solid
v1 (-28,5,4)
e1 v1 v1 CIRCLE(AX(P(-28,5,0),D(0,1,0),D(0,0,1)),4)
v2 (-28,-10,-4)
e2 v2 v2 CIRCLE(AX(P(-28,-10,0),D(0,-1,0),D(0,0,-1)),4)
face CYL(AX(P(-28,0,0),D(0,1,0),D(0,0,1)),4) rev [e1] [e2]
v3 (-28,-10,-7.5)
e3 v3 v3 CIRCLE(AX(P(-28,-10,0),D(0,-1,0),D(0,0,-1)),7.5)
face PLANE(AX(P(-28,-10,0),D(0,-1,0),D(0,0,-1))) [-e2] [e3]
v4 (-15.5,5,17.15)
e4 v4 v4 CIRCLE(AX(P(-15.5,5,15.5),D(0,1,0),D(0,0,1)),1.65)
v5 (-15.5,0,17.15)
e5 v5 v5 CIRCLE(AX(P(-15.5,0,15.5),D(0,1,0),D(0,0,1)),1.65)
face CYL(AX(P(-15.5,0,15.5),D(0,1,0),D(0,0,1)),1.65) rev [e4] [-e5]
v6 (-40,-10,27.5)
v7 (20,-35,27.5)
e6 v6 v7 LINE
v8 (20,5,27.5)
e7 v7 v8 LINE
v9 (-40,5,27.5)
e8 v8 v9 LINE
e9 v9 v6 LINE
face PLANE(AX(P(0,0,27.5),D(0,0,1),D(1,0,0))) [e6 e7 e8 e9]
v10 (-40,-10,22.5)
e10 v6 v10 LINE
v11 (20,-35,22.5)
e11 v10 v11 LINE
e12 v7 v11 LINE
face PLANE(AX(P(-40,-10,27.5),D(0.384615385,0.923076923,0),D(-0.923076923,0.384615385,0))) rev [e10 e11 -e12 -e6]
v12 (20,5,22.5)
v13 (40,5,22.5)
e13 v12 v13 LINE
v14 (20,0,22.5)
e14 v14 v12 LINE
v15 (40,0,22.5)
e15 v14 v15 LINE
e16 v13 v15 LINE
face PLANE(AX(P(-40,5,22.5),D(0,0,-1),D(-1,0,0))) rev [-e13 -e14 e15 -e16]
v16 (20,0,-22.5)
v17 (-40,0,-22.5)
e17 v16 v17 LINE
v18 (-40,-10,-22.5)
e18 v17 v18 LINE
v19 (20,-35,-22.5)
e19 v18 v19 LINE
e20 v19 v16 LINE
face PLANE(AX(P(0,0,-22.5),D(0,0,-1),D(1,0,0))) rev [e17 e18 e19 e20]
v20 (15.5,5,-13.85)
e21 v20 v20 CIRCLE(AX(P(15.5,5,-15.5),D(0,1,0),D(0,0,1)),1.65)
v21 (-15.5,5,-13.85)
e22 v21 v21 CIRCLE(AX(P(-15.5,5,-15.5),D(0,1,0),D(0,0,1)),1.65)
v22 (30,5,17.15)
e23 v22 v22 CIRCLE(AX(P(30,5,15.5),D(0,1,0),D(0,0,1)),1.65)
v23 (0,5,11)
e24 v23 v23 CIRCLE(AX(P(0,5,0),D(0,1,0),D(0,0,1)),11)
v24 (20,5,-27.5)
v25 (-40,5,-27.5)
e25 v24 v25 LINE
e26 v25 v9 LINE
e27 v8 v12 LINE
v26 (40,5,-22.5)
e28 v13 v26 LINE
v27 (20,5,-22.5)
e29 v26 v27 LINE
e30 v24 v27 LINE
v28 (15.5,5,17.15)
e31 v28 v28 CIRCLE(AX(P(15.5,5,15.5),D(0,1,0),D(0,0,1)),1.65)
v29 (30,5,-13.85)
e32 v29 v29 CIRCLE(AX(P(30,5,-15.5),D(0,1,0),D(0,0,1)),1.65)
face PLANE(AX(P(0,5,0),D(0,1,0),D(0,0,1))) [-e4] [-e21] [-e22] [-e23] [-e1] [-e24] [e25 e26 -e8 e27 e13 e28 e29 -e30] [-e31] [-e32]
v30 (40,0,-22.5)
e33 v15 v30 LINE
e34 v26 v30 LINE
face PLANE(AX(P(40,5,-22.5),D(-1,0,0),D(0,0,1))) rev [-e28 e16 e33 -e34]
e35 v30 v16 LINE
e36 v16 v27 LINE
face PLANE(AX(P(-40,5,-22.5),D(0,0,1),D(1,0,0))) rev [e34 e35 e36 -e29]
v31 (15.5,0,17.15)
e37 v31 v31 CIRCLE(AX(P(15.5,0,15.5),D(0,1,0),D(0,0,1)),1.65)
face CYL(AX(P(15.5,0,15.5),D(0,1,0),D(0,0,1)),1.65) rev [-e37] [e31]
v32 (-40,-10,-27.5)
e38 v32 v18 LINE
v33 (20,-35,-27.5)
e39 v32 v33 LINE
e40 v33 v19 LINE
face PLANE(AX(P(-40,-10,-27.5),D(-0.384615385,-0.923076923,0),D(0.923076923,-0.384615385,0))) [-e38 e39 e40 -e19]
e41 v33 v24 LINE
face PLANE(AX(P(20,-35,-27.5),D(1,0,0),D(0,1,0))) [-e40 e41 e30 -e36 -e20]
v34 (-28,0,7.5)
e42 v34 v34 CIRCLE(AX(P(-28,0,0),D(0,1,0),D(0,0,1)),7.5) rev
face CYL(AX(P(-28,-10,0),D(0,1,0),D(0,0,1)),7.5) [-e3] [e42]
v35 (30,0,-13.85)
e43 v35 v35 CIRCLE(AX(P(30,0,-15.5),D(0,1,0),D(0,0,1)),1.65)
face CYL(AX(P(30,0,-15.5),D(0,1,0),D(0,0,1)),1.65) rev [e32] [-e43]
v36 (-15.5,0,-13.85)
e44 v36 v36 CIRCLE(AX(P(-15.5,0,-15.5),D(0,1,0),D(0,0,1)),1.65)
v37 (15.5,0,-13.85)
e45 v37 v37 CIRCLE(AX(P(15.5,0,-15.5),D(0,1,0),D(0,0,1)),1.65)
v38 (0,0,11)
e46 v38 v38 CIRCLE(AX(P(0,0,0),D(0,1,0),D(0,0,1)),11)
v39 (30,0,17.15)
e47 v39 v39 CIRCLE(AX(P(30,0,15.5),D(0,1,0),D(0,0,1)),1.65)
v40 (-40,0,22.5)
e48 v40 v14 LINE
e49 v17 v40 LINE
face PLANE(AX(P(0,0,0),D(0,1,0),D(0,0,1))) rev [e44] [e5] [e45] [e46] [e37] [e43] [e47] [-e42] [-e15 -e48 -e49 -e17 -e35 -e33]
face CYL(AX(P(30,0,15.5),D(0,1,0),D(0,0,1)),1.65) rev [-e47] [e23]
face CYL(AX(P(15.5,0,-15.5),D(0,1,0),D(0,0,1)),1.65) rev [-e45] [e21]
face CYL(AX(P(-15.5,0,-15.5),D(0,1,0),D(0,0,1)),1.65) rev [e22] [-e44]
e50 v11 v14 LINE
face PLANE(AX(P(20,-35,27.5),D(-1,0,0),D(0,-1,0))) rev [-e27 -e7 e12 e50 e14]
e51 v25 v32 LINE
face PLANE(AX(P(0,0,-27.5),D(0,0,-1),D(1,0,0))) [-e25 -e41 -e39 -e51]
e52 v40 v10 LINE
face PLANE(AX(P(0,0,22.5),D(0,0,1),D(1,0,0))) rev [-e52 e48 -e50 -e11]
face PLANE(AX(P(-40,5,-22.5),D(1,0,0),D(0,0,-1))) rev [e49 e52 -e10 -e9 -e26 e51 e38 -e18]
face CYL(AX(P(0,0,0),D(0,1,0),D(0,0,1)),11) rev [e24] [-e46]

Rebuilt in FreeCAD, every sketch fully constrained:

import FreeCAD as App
import Part
import Sketcher
Q = App.Units.Quantity

doc = App.newDocument("Part")
body = doc.addObject("PartDesign::Body", "Body")

sketch1 = body.newObject("Sketcher::SketchObject", "Sketch")
sketch1.AttachmentSupport = (doc.getObject("XZ_Plane"), [""])
sketch1.MapMode = "FlatFace"
sketch1.addGeometry([
    Part.LineSegment(App.Vector(-40, -22, 0), App.Vector(-40, 22, 0)),
    Part.LineSegment(App.Vector(-40, 22, 0), App.Vector(40, 22, 0)),
    Part.LineSegment(App.Vector(40, 22, 0), App.Vector(40, -22, 0)),
    Part.LineSegment(App.Vector(40, -22, 0), App.Vector(-40, -22, 0)),
], False)
sketch1.addConstraint([
    Sketcher.Constraint("Coincident", 0, 2, 1, 1),
    Sketcher.Constraint("Coincident", 1, 2, 2, 1),
    Sketcher.Constraint("Coincident", 2, 2, 3, 1),
    Sketcher.Constraint("Coincident", 3, 2, 0, 1),
    Sketcher.Constraint("Vertical", 0),
    Sketcher.Constraint("Horizontal", 1),
    Sketcher.Constraint("Vertical", 2),
    Sketcher.Constraint("Horizontal", 3),
    Sketcher.Constraint("Symmetric", 0, 2, 2, 2, -1, 1),
    Sketcher.Constraint("DistanceX", 1, 1, 1, 2, Q("80 mm")),
    Sketcher.Constraint("DistanceY", 0, 1, 0, 2, Q("45 mm")),
])
pad1 = body.newObject("PartDesign::Pad", "Pad")
pad1.Profile = sketch1
pad1.Length = 5
pad1.Reversed = True

sketch2 = body.newObject("Sketcher::SketchObject", "Sketch001")
sketch2.AttachmentSupport = (doc.getObject("XZ_Plane"), [""])
sketch2.MapMode = "FlatFace"
sketch2.AttachmentOffset = App.Placement(App.Vector(0, 0, -5), App.Rotation())
sketch2.addGeometry([
    Part.Circle(App.Vector(-15.5, -15.5, 0), App.Vector(0, 0, 1), 1.6),
    Part.Circle(App.Vector(15.5, -15.5, 0), App.Vector(0, 0, 1), 1.6),
    Part.Circle(App.Vector(15.5, 15.5, 0), App.Vector(0, 0, 1), 1.6),
    Part.Circle(App.Vector(-15.5, 15.5, 0), App.Vector(0, 0, 1), 1.6),
    Part.Circle(App.Vector(30, -15.5, 0), App.Vector(0, 0, 1), 1.6),
    Part.Circle(App.Vector(30, 15.5, 0), App.Vector(0, 0, 1), 1.6),
    Part.Circle(App.Vector(-28, 0, 0), App.Vector(0, 0, 1), 4),
    Part.Circle(App.Vector(0, 0, 0), App.Vector(0, 0, 1), 11),
], False)
sketch2.addConstraint([
    Sketcher.Constraint("Coincident", 7, 3, -1, 1),
    Sketcher.Constraint("Equal", 0, 1),
    Sketcher.Constraint("Equal", 1, 2),
    Sketcher.Constraint("Equal", 2, 3),
    Sketcher.Constraint("Equal", 3, 4),
    Sketcher.Constraint("Equal", 4, 5),
    Sketcher.Constraint("Symmetric", 0, 3, 2, 3, -1, 1),
    Sketcher.Constraint("Symmetric", 1, 3, 3, 3, -1, 1),
    Sketcher.Constraint("Symmetric", 0, 3, 1, 3, -2),
    Sketcher.Constraint("Symmetric", 4, 3, 5, 3, -1),
    Sketcher.Constraint("PointOnObject", 6, 3, -1),
    Sketcher.Constraint("Horizontal", 1, 3, 4, 3),
    Sketcher.Constraint("Diameter", 6, Q("8 mm")),
    Sketcher.Constraint("Diameter", 7, Q("22 mm")),
    Sketcher.Constraint("Diameter", 0, Q("3.3 mm")),
    Sketcher.Constraint("DistanceX", -1, 1, 4, 3, Q("30 mm")),
    Sketcher.Constraint("DistanceX", 6, 3, -1, 1, Q("28 mm")),
    Sketcher.Constraint("DistanceX", 0, 3, 1, 3, Q("31 mm")),
    Sketcher.Constraint("DistanceY", 1, 3, 2, 3, Q("31 mm")),
])
pocket1 = body.newObject("PartDesign::Pocket", "Pocket")
pocket1.Profile = sketch2
pocket1.Type = "ThroughAll"
pocket1.Reversed = True

sketch3 = body.newObject("Sketcher::SketchObject", "Sketch002")
sketch3.AttachmentSupport = (doc.getObject("XZ_Plane"), [""])
sketch3.MapMode = "FlatFace"
sketch3.addGeometry([
    Part.Circle(App.Vector(-28, 0, 0), App.Vector(0, 0, 1), 7.5),
    Part.Circle(App.Vector(-28, 0, 0), App.Vector(0, 0, 1), 4),
], False)
sketch3.addConstraint([
    Sketcher.Constraint("Coincident", 1, 3, 0, 3),
    Sketcher.Constraint("PointOnObject", 0, 3, -1),
    Sketcher.Constraint("Diameter", 0, Q("15 mm")),
    Sketcher.Constraint("Diameter", 1, Q("8 mm")),
    Sketcher.Constraint("DistanceX", 0, 3, -1, 1, Q("28 mm")),
])
pad2 = body.newObject("PartDesign::Pad", "Pad001")
pad2.Profile = sketch3
pad2.Length = 10

sketch4 = body.newObject("Sketcher::SketchObject", "Sketch003")
sketch4.AttachmentSupport = (doc.getObject("XY_Plane"), [""])
sketch4.MapMode = "FlatFace"
sketch4.AttachmentOffset = App.Placement(App.Vector(0, 0, 22.5), App.Rotation())
sketch4.addGeometry([
    Part.LineSegment(App.Vector(-40, 5, 0), App.Vector(-40, -10, 0)),
    Part.LineSegment(App.Vector(-40, -10, 0), App.Vector(20, -35, 0)),
    Part.LineSegment(App.Vector(20, -35, 0), App.Vector(20, 5, 0)),
    Part.LineSegment(App.Vector(20, 5, 0), App.Vector(-40, 5, 0)),
], False)
sketch4.addConstraint([
    Sketcher.Constraint("Coincident", 0, 2, 1, 1),
    Sketcher.Constraint("Coincident", 1, 2, 2, 1),
    Sketcher.Constraint("Coincident", 2, 2, 3, 1),
    Sketcher.Constraint("Coincident", 3, 2, 0, 1),
    Sketcher.Constraint("Vertical", 0),
    Sketcher.Constraint("Vertical", 2),
    Sketcher.Constraint("Horizontal", 3),
    Sketcher.Constraint("DistanceX", 3, 2, 3, 1, Q("60 mm")),
    Sketcher.Constraint("DistanceY", 0, 2, 0, 1, Q("15 mm")),
    Sketcher.Constraint("DistanceY", 2, 1, 2, 2, Q("40 mm")),
    Sketcher.Constraint("DistanceX", 0, 2, -1, 1, Q("40 mm")),
    Sketcher.Constraint("DistanceY", 0, 2, -1, 1, Q("10 mm")),
])
pad3 = body.newObject("PartDesign::Pad", "Pad002")
pad3.Profile = sketch4
pad3.Length = 5
doc.recompute()

mirrored = body.newObject("PartDesign::Mirrored", "Mirrored")
mirrored.Originals = [pad3]
mirrored.MirrorPlane = (doc.getObject("XY_Plane"), [""])
body.Tip = mirrored

doc.recompute()
